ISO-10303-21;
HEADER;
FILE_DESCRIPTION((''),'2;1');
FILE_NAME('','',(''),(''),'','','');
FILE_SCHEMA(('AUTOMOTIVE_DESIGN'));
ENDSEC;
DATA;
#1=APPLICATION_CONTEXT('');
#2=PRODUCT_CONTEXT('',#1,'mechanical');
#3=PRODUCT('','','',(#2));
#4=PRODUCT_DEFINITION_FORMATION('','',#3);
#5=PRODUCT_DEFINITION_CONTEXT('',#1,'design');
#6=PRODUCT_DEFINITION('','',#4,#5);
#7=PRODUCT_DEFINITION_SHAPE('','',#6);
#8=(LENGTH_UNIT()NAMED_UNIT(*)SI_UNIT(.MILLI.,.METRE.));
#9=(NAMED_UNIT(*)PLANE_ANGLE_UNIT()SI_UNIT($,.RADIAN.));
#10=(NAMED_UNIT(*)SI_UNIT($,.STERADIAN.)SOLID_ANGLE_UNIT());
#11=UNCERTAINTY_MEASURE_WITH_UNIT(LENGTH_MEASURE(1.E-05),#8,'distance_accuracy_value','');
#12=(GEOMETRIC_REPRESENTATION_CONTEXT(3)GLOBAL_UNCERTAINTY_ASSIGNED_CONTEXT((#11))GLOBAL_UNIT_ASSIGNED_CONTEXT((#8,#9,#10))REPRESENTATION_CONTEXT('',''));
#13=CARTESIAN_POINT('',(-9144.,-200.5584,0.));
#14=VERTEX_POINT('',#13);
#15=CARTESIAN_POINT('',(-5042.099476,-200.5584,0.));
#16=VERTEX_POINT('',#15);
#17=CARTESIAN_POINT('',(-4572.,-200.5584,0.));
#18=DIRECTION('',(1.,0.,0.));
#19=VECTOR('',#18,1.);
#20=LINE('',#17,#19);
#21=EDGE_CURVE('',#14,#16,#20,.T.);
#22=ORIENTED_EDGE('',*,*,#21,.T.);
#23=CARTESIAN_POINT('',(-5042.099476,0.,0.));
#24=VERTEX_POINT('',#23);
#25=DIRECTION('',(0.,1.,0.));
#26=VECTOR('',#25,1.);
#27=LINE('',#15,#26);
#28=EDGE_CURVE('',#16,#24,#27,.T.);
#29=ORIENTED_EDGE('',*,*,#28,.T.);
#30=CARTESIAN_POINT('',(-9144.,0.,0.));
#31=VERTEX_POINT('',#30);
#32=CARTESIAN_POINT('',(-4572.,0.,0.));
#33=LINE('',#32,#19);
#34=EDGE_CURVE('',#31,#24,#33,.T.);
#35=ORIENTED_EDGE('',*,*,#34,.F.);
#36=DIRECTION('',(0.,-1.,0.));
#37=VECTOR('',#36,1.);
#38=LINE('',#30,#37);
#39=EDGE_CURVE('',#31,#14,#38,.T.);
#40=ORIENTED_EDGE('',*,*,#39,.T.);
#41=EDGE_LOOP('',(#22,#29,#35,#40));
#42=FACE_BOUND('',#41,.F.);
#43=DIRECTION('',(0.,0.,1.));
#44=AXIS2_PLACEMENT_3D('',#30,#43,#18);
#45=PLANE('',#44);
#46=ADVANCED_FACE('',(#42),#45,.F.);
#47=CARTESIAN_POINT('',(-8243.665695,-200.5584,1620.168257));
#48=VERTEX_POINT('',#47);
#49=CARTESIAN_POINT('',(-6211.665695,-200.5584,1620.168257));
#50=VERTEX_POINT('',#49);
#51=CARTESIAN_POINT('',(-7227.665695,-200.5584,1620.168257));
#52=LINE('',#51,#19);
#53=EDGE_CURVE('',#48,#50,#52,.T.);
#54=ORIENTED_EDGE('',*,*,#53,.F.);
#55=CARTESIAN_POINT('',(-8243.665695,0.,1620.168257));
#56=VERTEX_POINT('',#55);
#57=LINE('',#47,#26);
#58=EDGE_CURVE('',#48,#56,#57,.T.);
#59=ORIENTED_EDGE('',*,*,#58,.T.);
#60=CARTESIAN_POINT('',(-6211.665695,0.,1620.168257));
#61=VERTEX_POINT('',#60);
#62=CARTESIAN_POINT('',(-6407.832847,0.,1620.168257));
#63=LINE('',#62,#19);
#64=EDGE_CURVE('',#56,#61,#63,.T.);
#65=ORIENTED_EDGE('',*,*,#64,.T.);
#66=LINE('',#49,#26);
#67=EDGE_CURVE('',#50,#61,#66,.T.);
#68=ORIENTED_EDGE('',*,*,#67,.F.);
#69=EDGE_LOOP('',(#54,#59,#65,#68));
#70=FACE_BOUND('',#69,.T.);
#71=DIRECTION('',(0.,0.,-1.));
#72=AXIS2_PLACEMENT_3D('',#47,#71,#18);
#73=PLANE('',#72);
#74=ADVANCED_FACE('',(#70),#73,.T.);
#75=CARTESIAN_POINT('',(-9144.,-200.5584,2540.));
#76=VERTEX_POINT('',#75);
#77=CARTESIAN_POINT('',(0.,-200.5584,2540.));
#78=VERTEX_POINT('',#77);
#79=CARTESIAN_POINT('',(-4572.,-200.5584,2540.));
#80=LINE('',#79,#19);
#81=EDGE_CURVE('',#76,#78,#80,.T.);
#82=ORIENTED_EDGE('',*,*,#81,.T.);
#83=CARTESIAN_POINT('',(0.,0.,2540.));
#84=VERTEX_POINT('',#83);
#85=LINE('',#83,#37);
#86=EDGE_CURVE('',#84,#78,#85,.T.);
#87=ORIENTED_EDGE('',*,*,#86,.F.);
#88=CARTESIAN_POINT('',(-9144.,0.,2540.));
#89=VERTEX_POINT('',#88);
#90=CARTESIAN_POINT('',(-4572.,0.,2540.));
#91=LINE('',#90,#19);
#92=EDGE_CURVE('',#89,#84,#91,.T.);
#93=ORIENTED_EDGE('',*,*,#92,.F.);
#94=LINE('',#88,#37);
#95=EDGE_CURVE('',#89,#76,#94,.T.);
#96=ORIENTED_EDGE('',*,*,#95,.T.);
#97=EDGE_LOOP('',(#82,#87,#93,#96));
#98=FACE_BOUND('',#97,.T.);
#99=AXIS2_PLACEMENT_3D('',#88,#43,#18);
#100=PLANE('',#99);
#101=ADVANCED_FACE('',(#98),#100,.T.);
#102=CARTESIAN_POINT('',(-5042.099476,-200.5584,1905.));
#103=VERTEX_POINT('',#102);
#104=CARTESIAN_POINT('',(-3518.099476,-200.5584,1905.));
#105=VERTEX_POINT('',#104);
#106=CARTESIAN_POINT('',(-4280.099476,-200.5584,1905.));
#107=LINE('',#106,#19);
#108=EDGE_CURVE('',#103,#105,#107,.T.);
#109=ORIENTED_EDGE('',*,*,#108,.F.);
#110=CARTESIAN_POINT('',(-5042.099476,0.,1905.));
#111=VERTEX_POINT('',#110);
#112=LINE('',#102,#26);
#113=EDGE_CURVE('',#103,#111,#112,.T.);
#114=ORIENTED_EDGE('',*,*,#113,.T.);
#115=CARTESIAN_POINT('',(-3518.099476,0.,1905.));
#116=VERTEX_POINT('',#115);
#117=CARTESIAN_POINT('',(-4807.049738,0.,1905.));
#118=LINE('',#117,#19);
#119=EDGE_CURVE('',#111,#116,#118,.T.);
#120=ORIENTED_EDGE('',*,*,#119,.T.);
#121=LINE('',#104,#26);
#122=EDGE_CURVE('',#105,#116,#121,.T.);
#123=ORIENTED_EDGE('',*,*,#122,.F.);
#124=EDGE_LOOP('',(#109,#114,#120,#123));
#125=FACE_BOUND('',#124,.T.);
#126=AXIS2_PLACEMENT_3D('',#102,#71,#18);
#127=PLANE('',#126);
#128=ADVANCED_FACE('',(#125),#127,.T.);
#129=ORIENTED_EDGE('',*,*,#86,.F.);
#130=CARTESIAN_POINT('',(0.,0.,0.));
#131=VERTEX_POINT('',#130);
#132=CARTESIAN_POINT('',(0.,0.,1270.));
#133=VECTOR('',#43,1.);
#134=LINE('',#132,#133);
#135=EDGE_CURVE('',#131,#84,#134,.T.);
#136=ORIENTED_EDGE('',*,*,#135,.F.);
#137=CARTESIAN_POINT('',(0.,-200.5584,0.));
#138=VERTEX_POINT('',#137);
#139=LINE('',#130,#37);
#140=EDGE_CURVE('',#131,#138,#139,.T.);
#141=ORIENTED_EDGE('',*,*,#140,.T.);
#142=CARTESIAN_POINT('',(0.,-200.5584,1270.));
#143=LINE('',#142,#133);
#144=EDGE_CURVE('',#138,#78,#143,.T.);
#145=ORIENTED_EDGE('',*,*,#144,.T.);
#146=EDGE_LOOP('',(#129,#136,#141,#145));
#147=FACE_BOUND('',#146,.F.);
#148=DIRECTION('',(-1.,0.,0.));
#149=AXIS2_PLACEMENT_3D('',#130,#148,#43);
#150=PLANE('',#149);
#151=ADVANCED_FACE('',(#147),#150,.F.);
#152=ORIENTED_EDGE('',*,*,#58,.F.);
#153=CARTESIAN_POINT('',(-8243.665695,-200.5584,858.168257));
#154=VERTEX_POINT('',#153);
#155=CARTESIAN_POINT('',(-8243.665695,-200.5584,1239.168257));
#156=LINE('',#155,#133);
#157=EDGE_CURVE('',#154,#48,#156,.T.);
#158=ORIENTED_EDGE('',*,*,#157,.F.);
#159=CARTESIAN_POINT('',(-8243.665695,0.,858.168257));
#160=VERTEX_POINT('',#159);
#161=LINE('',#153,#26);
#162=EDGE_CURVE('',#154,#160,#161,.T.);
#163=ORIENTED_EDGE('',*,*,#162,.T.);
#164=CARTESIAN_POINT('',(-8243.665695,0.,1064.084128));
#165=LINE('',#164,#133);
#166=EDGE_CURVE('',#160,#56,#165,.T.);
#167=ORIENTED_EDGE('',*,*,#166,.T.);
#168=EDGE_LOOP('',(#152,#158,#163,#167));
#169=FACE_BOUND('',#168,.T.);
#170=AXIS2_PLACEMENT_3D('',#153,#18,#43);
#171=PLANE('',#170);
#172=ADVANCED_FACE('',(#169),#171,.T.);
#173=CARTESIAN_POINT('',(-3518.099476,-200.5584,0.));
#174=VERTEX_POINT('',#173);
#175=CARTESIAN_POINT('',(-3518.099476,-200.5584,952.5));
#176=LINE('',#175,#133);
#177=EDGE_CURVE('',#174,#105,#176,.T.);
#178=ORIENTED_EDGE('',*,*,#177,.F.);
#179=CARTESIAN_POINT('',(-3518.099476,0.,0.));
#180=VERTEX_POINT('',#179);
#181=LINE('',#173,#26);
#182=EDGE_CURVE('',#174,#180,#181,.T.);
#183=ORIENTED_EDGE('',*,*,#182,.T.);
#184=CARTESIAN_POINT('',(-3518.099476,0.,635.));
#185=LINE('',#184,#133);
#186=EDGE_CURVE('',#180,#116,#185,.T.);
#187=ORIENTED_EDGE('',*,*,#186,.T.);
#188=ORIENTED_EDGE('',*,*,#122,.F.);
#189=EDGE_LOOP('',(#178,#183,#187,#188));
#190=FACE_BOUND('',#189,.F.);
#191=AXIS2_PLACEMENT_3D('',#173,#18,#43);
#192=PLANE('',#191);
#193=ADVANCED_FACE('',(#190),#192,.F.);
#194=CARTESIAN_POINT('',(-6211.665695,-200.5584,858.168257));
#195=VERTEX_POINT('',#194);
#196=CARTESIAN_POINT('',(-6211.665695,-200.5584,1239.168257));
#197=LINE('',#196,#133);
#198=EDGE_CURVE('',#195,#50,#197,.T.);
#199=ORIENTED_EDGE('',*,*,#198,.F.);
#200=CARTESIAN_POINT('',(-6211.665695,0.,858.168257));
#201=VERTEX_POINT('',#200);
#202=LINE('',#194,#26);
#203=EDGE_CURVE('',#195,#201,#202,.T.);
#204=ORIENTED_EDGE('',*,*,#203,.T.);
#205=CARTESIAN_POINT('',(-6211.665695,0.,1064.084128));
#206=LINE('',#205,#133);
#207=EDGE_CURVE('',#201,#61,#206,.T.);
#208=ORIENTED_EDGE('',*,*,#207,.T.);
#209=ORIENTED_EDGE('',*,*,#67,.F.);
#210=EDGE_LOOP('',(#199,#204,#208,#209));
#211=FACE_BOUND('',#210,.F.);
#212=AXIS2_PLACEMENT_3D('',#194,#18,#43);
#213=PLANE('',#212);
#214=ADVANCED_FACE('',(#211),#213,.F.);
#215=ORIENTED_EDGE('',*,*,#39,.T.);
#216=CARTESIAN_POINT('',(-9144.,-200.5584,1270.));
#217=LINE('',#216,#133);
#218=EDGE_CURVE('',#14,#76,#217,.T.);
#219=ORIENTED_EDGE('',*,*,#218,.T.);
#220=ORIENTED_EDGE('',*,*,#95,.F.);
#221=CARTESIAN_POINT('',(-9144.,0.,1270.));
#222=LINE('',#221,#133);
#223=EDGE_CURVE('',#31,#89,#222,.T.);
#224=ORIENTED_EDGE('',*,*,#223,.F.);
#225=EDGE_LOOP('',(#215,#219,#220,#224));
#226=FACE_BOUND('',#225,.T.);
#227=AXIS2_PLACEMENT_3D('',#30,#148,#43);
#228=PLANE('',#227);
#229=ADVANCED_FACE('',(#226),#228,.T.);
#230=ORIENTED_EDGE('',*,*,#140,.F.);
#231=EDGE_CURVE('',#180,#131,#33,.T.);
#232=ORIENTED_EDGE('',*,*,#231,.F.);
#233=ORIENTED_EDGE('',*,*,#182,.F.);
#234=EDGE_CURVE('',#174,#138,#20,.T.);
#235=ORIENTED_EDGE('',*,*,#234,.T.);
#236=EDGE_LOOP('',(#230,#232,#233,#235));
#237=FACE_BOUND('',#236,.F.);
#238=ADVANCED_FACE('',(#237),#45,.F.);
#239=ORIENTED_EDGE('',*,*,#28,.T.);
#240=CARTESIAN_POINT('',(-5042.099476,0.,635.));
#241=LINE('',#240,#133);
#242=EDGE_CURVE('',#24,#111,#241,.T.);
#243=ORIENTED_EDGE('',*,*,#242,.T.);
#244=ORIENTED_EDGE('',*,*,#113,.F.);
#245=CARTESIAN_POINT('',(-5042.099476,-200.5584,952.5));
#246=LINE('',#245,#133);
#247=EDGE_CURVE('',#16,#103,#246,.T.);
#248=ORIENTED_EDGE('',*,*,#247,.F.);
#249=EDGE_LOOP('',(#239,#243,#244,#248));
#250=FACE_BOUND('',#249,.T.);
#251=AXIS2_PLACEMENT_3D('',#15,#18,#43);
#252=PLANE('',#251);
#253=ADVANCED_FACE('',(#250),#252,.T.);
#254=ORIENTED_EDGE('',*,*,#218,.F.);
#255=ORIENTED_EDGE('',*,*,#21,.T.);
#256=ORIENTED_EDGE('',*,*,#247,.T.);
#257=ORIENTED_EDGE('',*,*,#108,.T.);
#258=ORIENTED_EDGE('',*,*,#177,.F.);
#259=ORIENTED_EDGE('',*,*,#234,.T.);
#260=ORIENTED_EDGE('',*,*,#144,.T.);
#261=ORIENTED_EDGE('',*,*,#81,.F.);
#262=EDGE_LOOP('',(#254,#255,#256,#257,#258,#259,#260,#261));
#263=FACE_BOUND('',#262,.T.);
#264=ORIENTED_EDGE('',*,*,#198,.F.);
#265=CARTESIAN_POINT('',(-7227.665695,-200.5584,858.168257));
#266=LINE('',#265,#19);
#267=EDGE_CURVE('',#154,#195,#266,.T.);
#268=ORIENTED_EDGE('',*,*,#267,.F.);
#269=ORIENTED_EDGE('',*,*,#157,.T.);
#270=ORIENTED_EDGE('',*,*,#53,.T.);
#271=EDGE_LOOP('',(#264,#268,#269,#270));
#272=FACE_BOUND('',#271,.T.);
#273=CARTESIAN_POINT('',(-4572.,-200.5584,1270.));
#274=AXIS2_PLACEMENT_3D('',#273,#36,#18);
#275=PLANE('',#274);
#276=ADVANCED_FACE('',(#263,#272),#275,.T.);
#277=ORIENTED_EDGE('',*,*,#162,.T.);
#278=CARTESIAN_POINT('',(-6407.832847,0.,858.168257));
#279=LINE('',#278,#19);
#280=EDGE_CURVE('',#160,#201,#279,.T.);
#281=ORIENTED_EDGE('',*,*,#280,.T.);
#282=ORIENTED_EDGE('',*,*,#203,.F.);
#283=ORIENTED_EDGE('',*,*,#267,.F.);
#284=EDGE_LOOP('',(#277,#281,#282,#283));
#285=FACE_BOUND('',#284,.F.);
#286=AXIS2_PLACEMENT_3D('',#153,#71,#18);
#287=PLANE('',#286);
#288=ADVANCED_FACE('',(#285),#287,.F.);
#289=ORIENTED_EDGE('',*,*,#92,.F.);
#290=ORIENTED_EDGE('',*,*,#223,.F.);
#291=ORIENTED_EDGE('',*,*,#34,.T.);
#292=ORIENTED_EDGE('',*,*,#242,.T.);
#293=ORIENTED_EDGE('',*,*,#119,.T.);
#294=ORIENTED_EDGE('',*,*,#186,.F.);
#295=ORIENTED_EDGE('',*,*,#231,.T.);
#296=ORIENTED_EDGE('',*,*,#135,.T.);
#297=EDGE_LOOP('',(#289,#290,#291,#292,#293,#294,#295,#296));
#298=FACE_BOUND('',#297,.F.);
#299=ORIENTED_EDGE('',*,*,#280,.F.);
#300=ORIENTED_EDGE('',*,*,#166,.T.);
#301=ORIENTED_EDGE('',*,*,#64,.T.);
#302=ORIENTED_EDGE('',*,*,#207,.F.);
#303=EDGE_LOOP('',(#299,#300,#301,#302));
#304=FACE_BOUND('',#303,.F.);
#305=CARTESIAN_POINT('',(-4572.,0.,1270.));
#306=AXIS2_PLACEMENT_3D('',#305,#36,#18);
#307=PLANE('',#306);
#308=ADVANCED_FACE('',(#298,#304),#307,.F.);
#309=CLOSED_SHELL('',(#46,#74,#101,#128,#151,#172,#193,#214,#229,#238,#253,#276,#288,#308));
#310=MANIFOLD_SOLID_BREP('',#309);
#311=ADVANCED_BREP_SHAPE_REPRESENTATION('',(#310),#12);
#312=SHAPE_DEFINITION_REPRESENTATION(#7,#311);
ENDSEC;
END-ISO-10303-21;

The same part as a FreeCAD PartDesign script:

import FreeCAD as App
import Part
import Sketcher

V = App.Vector
Q = App.Units.Quantity

doc = App.newDocument("Part")
body = doc.addObject("PartDesign::Body", "Body")

# Sketch on XZ plane
sketch1 = body.newObject("Sketcher::SketchObject", "Sketch")
sketch1.AttachmentSupport = (doc.getObject("XZ_Plane"), [""])
sketch1.MapMode = "FlatFace"
sketch1.addGeometry([
    Part.LineSegment(V(-9144, 2540, 0), V(-9144, 0, 0)),
    Part.LineSegment(V(-9144, 0, 0), V(0, 0, 0)),
    Part.LineSegment(V(0, 0, 0), V(0, 2540, 0)),
    Part.LineSegment(V(0, 2540, 0), V(-9144, 2540, 0)),
], False)
sketch1.addConstraint([
    Sketcher.Constraint("Coincident", 0, 2, 1, 1),
    Sketcher.Constraint("Coincident", 1, 2, 2, 1),
    Sketcher.Constraint("Coincident", 2, 2, 3, 1),
    Sketcher.Constraint("Coincident", 3, 2, 0, 1),
    Sketcher.Constraint("Vertical", 0),
    Sketcher.Constraint("Horizontal", 1),
    Sketcher.Constraint("Vertical", 2),
    Sketcher.Constraint("Horizontal", 3),
    Sketcher.Constraint("Coincident", 1, 2, -1, 1),
    Sketcher.Constraint("DistanceX", 1, 1, 1, 2, Q("360 in")),
    Sketcher.Constraint("DistanceY", 0, 2, 0, 1, Q("100 in")),
])
pad1 = body.newObject("PartDesign::Pad", "Pad")
pad1.Profile = sketch1
pad1.Length = Q("7.896 in")

# Sketch on XZ plane
sketch2 = body.newObject("Sketcher::SketchObject", "Sketch001")
sketch2.AttachmentSupport = (doc.getObject("XZ_Plane"), [""])
sketch2.MapMode = "FlatFace"
sketch2.AttachmentOffset = App.Placement(V(0, 0, 7.896 * 25.4), App.Rotation())
sketch2.addGeometry([
    Part.LineSegment(V(-8243.665695, 1620.168257, 0), V(-8243.665695, 858.168257, 0)),  # 0
    Part.LineSegment(V(-8243.665695, 858.168257, 0), V(-6211.665695, 858.168257, 0)),  # 1
    Part.LineSegment(V(-6211.665695, 858.168257, 0), V(-6211.665695, 1620.168257, 0)),  # 2
    Part.LineSegment(V(-6211.665695, 1620.168257, 0), V(-8243.665695, 1620.168257, 0)),  # 3
    Part.LineSegment(V(-5042.099476, 1905, 0), V(-5042.099476, 0, 0)),  # 4
    Part.LineSegment(V(-5042.099476, 0, 0), V(-3518.099476, 0, 0)),  # 5
    Part.LineSegment(V(-3518.099476, 0, 0), V(-3518.099476, 1905, 0)),  # 6
    Part.LineSegment(V(-3518.099476, 1905, 0), V(-5042.099476, 1905, 0)),  # 7
], False)
sketch2.addConstraint([
    Sketcher.Constraint("Coincident", 0, 2, 1, 1),
    Sketcher.Constraint("Coincident", 1, 2, 2, 1),
    Sketcher.Constraint("Coincident", 2, 2, 3, 1),
    Sketcher.Constraint("Coincident", 3, 2, 0, 1),
    Sketcher.Constraint("Coincident", 4, 2, 5, 1),
    Sketcher.Constraint("Coincident", 5, 2, 6, 1),
    Sketcher.Constraint("Coincident", 6, 2, 7, 1),
    Sketcher.Constraint("Coincident", 7, 2, 4, 1),
    Sketcher.Constraint("Vertical", 0),
    Sketcher.Constraint("Horizontal", 1),
    Sketcher.Constraint("Vertical", 2),
    Sketcher.Constraint("Horizontal", 3),
    Sketcher.Constraint("Vertical", 4),
    Sketcher.Constraint("Horizontal", 5),
    Sketcher.Constraint("Vertical", 6),
    Sketcher.Constraint("Horizontal", 7),
    Sketcher.Constraint("PointOnObject", 4, 2, -1),
    Sketcher.Constraint("DistanceX", 1, 1, 1, 2, Q("80 in")),
    Sketcher.Constraint("DistanceX", 5, 1, 5, 2, Q("60 in")),
    Sketcher.Constraint("DistanceY", 0, 2, 0, 1, Q("30 in")),
    Sketcher.Constraint("DistanceY", 4, 2, 4, 1, Q("75 in")),
    Sketcher.Constraint("DistanceX", 1, 2, 4, 2, Q("1169.566219 mm")),
    Sketcher.Constraint("DistanceX", 0, 2, -1, 1, Q("8243.665695 mm")),
    Sketcher.Constraint("DistanceY", -1, 1, 0, 2, Q("858.168257 mm")),
])
pocket1 = body.newObject("PartDesign::Pocket", "Pocket")
pocket1.Profile = sketch2
pocket1.Length = Q("8.28 in")

doc.recompute()
